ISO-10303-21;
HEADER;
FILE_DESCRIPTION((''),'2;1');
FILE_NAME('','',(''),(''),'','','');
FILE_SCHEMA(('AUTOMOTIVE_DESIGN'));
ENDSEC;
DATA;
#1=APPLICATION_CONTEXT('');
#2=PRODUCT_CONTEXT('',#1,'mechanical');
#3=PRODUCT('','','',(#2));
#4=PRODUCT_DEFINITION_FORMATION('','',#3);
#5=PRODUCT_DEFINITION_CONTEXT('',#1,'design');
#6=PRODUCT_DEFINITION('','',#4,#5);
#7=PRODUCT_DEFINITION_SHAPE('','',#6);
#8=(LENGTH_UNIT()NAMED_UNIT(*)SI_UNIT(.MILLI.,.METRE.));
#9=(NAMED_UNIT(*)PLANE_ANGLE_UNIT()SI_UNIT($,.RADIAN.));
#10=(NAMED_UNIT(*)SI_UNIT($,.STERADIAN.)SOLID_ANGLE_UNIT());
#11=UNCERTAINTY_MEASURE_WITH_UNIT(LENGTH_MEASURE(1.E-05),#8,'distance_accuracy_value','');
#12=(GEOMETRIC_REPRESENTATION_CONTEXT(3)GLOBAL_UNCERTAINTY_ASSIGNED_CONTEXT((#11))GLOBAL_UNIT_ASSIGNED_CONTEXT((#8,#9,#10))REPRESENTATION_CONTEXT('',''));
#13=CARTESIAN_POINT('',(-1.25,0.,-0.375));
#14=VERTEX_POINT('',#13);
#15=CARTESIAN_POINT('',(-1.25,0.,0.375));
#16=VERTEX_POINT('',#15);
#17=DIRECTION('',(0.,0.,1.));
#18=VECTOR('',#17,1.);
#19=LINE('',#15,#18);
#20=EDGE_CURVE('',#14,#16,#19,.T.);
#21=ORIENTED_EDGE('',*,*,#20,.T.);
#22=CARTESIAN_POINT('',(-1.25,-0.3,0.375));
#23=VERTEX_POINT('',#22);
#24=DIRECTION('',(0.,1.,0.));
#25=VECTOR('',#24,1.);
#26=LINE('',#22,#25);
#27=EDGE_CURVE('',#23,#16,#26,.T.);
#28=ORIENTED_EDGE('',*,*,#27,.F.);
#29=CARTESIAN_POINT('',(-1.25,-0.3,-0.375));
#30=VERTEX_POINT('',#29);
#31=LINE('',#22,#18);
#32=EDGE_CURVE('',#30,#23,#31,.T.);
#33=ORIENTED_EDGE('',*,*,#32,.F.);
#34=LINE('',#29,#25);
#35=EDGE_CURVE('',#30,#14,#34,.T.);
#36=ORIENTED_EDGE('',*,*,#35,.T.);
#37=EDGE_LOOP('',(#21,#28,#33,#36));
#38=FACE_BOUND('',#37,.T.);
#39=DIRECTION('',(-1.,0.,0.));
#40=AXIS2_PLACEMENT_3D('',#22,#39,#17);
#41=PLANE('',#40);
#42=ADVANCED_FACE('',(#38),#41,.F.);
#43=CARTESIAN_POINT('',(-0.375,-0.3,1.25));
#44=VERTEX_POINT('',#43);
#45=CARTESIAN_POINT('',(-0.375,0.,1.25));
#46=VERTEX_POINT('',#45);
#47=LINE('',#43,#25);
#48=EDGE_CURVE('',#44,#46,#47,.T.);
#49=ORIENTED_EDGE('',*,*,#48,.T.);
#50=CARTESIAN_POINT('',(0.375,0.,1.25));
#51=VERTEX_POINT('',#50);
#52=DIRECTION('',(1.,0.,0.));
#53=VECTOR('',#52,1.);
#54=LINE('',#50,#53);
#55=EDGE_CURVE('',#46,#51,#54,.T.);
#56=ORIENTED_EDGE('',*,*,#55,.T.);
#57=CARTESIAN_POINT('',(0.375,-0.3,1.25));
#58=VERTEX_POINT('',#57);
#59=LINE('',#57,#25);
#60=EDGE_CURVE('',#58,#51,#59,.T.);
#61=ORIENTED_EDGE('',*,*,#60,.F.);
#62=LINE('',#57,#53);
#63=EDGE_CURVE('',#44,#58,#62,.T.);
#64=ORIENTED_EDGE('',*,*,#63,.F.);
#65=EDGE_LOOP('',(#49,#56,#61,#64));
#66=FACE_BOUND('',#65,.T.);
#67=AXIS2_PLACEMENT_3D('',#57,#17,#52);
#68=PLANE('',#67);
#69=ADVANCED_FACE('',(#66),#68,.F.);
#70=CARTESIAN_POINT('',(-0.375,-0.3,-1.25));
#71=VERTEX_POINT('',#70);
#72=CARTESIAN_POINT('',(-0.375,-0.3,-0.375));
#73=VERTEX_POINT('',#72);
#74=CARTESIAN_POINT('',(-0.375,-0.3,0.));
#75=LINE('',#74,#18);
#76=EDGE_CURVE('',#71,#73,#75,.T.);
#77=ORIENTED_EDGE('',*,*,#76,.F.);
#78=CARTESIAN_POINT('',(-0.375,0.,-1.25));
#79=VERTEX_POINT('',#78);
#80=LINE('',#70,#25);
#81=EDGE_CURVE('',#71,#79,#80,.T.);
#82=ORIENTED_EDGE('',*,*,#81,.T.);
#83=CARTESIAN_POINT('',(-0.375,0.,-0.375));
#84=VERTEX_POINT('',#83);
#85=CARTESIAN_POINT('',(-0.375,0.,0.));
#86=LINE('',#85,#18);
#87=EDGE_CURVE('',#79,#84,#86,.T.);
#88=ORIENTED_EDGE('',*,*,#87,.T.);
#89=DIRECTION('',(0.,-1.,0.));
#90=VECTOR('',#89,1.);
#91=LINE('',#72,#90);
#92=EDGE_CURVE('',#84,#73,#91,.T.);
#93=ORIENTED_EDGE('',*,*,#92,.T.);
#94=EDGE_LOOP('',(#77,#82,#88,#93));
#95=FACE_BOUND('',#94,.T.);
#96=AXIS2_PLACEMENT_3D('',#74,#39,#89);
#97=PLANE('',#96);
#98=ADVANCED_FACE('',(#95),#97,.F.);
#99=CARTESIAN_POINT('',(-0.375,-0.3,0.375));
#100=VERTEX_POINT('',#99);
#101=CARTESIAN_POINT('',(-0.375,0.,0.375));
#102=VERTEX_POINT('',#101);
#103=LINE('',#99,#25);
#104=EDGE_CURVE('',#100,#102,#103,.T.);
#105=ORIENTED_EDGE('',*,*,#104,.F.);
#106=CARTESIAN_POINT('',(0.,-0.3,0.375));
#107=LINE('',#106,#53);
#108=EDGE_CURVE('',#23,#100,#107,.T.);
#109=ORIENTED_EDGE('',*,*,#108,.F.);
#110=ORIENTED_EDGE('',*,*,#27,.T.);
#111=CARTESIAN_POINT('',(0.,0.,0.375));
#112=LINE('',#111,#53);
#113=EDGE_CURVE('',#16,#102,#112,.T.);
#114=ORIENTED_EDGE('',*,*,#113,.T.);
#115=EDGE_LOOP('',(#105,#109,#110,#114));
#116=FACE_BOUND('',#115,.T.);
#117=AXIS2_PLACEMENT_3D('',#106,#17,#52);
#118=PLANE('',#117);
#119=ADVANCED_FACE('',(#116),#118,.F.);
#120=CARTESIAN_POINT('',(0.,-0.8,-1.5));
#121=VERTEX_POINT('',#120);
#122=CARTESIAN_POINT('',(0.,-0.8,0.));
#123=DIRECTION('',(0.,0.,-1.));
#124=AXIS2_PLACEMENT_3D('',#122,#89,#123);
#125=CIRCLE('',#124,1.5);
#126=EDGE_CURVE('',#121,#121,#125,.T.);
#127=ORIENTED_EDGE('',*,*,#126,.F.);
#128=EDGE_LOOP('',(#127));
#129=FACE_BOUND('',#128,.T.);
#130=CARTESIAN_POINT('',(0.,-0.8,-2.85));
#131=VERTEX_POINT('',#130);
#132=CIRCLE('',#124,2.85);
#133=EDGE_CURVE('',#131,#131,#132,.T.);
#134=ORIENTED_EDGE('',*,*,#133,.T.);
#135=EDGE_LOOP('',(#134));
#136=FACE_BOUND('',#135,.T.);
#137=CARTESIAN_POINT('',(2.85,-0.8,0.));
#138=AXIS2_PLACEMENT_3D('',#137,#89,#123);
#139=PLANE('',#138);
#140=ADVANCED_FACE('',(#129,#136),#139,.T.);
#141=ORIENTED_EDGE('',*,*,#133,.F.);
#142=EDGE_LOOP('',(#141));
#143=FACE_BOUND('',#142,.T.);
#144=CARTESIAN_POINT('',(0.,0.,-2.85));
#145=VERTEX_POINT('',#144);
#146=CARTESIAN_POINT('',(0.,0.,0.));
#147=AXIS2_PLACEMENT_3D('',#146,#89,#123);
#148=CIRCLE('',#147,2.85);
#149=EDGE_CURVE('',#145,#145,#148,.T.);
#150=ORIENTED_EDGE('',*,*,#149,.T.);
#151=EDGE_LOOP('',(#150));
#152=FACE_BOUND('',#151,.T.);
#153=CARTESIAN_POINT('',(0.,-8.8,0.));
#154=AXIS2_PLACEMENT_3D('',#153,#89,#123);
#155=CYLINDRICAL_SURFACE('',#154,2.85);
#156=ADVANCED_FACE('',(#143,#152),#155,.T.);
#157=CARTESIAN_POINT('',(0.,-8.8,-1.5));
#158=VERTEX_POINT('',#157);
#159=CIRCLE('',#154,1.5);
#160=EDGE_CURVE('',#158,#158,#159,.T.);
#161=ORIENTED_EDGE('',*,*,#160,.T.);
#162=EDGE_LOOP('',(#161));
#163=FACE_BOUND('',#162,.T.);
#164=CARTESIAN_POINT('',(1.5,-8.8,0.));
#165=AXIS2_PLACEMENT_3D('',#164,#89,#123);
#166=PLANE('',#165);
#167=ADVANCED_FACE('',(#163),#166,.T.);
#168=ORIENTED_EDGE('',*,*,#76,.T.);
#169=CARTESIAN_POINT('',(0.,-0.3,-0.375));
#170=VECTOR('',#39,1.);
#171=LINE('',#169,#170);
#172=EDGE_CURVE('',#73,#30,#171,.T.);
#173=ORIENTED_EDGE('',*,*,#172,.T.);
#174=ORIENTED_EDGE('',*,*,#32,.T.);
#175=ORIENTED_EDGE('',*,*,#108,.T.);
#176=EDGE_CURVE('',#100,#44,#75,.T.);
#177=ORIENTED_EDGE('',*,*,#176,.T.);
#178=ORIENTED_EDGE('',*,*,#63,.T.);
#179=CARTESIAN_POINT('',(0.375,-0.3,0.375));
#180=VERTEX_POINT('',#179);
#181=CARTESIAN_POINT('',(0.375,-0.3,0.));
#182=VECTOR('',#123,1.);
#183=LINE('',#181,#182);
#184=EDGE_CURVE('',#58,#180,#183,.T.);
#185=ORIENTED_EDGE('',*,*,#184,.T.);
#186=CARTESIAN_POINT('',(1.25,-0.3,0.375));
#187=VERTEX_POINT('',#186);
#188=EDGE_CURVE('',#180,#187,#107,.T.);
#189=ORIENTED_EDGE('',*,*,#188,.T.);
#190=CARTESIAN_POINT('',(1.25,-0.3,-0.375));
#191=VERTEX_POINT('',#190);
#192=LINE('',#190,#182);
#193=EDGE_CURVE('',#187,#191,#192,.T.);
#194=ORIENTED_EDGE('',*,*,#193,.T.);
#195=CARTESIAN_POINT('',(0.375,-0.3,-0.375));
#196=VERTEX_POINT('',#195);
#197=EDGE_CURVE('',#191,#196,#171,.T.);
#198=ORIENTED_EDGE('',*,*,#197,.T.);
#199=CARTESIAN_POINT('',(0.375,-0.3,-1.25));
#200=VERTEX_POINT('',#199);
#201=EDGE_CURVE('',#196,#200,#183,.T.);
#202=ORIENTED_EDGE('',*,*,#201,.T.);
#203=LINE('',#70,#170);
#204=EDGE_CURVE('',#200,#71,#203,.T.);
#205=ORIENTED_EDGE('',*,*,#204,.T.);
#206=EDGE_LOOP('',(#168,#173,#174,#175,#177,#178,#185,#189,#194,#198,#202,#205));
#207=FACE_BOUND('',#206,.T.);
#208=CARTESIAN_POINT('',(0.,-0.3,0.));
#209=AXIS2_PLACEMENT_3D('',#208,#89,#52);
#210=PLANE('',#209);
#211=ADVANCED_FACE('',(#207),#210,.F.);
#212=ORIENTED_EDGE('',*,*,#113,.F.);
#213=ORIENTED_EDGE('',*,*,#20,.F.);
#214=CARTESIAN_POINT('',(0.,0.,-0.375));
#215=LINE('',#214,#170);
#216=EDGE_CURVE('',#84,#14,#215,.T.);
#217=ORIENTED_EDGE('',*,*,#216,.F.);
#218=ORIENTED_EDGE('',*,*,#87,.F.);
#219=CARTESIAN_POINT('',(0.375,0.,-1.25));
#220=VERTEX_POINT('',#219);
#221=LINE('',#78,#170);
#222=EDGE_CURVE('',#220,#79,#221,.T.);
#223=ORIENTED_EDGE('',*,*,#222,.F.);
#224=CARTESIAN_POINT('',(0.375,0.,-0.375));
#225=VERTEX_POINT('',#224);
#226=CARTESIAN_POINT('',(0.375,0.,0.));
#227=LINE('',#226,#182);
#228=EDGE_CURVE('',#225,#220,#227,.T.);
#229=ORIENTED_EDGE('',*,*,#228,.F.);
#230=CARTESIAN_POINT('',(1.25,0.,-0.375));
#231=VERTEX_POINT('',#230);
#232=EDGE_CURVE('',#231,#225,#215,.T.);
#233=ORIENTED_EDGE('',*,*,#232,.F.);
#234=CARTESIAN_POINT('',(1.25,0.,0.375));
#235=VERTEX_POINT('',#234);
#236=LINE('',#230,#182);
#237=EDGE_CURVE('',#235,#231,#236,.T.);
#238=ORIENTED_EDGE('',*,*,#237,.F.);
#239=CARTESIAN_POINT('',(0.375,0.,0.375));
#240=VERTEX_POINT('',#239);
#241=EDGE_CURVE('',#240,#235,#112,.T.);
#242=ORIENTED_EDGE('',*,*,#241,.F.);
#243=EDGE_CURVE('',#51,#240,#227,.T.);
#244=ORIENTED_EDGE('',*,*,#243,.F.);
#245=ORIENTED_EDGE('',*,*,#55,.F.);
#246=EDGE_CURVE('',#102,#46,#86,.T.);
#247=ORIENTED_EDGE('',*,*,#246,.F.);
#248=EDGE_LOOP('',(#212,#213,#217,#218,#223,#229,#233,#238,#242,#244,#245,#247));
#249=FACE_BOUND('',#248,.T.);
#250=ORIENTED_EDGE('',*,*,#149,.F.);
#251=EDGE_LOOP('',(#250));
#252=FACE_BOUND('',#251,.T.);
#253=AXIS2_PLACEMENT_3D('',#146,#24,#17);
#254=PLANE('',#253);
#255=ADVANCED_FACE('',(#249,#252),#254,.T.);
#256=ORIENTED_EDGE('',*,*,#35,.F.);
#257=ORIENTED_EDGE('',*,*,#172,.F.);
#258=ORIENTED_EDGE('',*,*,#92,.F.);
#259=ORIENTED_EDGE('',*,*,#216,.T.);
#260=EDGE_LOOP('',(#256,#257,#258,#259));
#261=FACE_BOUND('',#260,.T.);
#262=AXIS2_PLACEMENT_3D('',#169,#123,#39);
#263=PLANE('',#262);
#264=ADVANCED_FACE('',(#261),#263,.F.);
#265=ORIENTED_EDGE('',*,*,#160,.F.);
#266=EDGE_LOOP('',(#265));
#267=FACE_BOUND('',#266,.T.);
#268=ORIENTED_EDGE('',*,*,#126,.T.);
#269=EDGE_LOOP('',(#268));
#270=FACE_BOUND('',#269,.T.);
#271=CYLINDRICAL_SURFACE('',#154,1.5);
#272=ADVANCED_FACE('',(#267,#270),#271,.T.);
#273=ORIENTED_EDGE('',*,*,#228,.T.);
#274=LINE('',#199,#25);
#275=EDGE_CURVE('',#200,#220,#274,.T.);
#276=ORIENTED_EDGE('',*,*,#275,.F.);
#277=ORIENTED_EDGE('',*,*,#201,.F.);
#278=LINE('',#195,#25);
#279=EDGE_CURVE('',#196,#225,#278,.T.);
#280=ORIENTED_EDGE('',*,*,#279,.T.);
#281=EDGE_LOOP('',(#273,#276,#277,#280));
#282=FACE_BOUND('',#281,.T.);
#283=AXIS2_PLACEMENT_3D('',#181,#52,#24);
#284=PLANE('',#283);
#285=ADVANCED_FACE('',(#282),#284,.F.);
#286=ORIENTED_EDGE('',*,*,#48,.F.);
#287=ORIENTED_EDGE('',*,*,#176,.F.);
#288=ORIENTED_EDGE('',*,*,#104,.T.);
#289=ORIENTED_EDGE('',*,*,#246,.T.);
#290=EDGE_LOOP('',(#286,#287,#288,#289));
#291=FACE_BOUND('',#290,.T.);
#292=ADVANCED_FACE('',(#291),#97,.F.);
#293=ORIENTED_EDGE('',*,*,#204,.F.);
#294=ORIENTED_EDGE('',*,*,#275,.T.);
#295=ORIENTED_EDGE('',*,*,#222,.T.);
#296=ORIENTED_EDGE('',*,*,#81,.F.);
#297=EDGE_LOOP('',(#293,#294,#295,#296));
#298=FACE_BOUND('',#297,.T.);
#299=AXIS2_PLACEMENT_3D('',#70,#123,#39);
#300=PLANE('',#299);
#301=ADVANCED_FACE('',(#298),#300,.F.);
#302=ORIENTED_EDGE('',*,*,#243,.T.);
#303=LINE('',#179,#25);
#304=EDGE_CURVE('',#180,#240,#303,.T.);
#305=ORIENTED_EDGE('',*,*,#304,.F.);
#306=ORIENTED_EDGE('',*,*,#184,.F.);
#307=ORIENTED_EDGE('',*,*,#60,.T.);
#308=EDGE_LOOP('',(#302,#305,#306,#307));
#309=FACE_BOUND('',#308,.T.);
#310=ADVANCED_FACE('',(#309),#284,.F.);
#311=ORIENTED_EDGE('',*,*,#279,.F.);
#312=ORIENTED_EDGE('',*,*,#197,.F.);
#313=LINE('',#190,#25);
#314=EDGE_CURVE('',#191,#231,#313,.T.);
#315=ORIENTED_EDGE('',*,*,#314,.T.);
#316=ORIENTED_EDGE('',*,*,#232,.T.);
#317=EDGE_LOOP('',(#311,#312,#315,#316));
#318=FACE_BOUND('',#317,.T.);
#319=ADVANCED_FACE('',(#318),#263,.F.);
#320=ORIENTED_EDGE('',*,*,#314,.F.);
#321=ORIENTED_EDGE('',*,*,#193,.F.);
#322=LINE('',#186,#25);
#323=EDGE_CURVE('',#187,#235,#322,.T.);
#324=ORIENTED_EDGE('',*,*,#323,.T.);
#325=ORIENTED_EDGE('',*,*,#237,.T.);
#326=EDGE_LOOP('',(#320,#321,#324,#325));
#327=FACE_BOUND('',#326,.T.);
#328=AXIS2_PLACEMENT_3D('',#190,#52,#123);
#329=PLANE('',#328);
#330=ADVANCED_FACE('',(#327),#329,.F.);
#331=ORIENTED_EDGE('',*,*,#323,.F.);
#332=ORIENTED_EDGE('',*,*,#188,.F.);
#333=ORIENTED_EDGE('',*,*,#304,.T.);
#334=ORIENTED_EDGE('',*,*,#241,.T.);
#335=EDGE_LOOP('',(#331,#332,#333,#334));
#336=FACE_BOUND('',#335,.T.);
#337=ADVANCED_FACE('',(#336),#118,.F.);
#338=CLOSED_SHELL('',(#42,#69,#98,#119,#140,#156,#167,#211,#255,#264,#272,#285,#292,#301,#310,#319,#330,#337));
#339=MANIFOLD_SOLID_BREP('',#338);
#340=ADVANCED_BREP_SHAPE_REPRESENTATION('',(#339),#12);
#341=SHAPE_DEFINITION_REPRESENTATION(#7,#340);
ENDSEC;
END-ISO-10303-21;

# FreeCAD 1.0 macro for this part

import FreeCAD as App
import Part
import Sketcher
Q = App.Units.Quantity

doc = App.newDocument("Part")
params = doc.addObject("Spreadsheet::Sheet", "Params")
for row, (alias, value) in enumerate([
    ("sketch1_height", "8 mm"),
    ("sketch1_width", "1.5 mm"),
    ("sketch1_height2", "8.8 mm"),
    ("sketch1_width2", "2.85 mm"),
    ("revolution_angle", "360 deg"),
    ("sketch2_width", "0.75 mm"),
    ("sketch2_height", "1.25 mm"),
    ("pocket1_length", "0.3 mm"),
], start=1):
    params.set(f"A{row}", alias)
    params.set(f"B{row}", "=" + value)
    params.setAlias(f"B{row}", alias)

body = doc.addObject("PartDesign::Body", "Body")

sketch1 = body.newObject("Sketcher::SketchObject", "Sketch")
sketch1.AttachmentSupport = (doc.getObject("XY_Plane"), [""])
sketch1.MapMode = "FlatFace"
sketch1.addGeometry([
    Part.LineSegment(App.Vector(2.9, 0, 0), App.Vector(0, 0, 0)),
    Part.LineSegment(App.Vector(0, 0, 0), App.Vector(0, -8.8, 0)),
    Part.LineSegment(App.Vector(0, -8.8, 0), App.Vector(1.5, -8.8, 0)),
    Part.LineSegment(App.Vector(1.5, -8.8, 0), App.Vector(1.5, -0.8, 0)),
    Part.LineSegment(App.Vector(1.5, -0.8, 0), App.Vector(2.9, -0.8, 0)),
    Part.LineSegment(App.Vector(2.9, -0.8, 0), App.Vector(2.9, 0, 0)),
], False)
sketch1.addConstraint([
    Sketcher.Constraint("Coincident", 0, 2, 1, 1),
    Sketcher.Constraint("Coincident", 1, 2, 2, 1),
    Sketcher.Constraint("Coincident", 2, 2, 3, 1),
    Sketcher.Constraint("Coincident", 3, 2, 4, 1),
    Sketcher.Constraint("Coincident", 4, 2, 5, 1),
    Sketcher.Constraint("Coincident", 5, 2, 0, 1),
    Sketcher.Constraint("Horizontal", 0),
    Sketcher.Constraint("Vertical", 1),
    Sketcher.Constraint("Horizontal", 2),
    Sketcher.Constraint("Vertical", 3),
    Sketcher.Constraint("Horizontal", 4),
    Sketcher.Constraint("Vertical", 5),
    Sketcher.Constraint("Coincident", 0, 2, -1, 1),
    Sketcher.Constraint("DistanceY", 3, 1, 3, 2, Q("8 mm")),
    Sketcher.Constraint("DistanceX", 2, 1, 2, 2, Q("1.5 mm")),
    Sketcher.Constraint("DistanceY", 1, 2, 1, 1, Q("8.8 mm")),
    Sketcher.Constraint("DistanceX", 0, 2, 0, 1, Q("2.85 mm")),
])
sketch1.setExpression("Constraints[13]", "Params.sketch1_height")
sketch1.setExpression("Constraints[14]", "Params.sketch1_width")
sketch1.setExpression("Constraints[15]", "Params.sketch1_height2")
sketch1.setExpression("Constraints[16]", "Params.sketch1_width2")
revolution = body.newObject("PartDesign::Revolution", "Revolution")
revolution.Profile = sketch1
revolution.ReferenceAxis = (sketch1, ["V_Axis"])
revolution.setExpression("Angle", "Params.revolution_angle")

sketch2 = body.newObject("Sketcher::SketchObject", "Sketch001")
sketch2.AttachmentSupport = (doc.getObject("XZ_Plane"), [""])
sketch2.MapMode = "FlatFace"
sketch2.addGeometry([
    Part.LineSegment(App.Vector(-0.4, -1.2, 0), App.Vector(-0.4, 0, 0)),
    Part.LineSegment(App.Vector(-0.4, 0, 0), App.Vector(0.4, 0, 0)),
    Part.LineSegment(App.Vector(0.4, 0, 0), App.Vector(0.4, -1.2, 0)),
    Part.LineSegment(App.Vector(0.4, -1.2, 0), App.Vector(-0.4, -1.2, 0)),
], False)
sketch2.addConstraint([
    Sketcher.Constraint("Coincident", 0, 2, 1, 1),
    Sketcher.Constraint("Coincident", 1, 2, 2, 1),
    Sketcher.Constraint("Coincident", 2, 2, 3, 1),
    Sketcher.Constraint("Coincident", 3, 2, 0, 1),
    Sketcher.Constraint("Vertical", 0),
    Sketcher.Constraint("Horizontal", 1),
    Sketcher.Constraint("Vertical", 2),
    Sketcher.Constraint("Horizontal", 3),
    Sketcher.Constraint("Symmetric", 0, 2, 1, 2, -1, 1),
    Sketcher.Constraint("DistanceX", 1, 1, 1, 2, Q("0.75 mm")),
    Sketcher.Constraint("DistanceY", 0, 1, 0, 2, Q("1.25 mm")),
])
sketch2.setExpression("Constraints[9]", "Params.sketch2_width")
sketch2.setExpression("Constraints[10]", "Params.sketch2_height")
pocket1 = body.newObject("PartDesign::Pocket", "Pocket")
pocket1.Profile = sketch2
pocket1.setExpression("Length", "Params.pocket1_length")
pocket1.Reversed = True
doc.recompute()

polarpattern = body.newObject("PartDesign::PolarPattern", "PolarPattern")
polarpattern.Originals = [pocket1]
polarpattern.Axis = (doc.getObject("Y_Axis"), [""])
polarpattern.Angle = 360
polarpattern.Occurrences = 4
body.Tip = polarpattern

doc.recompute()
